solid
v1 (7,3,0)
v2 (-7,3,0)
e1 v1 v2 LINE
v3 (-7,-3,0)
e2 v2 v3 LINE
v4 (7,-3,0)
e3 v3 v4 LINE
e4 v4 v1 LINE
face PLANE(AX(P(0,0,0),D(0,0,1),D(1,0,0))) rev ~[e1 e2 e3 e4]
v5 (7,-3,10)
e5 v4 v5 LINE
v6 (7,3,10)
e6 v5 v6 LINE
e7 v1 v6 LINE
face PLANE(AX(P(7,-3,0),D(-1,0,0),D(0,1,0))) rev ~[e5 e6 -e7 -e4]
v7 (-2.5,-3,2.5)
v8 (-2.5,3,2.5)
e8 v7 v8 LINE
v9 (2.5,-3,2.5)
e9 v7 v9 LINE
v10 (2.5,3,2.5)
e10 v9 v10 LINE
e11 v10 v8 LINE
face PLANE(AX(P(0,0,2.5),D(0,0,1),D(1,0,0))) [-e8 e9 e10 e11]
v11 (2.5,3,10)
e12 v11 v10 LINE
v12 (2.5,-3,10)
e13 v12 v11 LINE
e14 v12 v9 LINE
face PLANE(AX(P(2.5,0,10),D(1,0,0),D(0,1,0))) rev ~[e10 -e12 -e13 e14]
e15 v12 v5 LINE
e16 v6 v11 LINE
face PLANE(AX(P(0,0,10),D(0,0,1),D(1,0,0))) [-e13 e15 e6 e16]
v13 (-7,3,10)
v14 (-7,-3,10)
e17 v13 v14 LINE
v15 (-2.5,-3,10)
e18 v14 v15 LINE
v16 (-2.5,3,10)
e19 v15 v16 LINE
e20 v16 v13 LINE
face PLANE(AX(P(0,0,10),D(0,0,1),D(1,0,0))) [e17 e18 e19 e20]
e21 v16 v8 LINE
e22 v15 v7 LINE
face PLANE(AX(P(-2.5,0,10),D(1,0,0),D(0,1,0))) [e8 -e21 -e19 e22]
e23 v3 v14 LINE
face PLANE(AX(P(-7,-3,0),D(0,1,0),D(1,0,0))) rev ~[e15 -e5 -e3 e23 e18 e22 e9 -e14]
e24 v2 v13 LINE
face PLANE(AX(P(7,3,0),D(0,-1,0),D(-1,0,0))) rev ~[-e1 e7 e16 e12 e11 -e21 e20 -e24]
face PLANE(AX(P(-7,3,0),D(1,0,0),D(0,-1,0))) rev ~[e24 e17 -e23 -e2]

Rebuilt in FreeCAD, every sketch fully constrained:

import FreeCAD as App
import Part
import Sketcher

V = App.Vector
Q = App.Units.Quantity


def add_polygon(sketch, points):
    """Adds a closed chain of lines whose ends are joined by coincident constraints."""
    first, n = sketch.GeometryCount, len(points)
    for a, b in zip(points, points[1:] + points[:1]):
        sketch.addGeometry(Part.LineSegment(App.Vector(*a, 0), App.Vector(*b, 0)), False)
    for i in range(n):
        sketch.addConstraint(Sketcher.Constraint("Coincident", first + i, 2, first + (i + 1) % n, 1))

doc = App.newDocument("Part")
params = doc.addObject("Spreadsheet::Sheet", "Params")
for row, (alias, value) in enumerate([
    ("sketch1_width", "14 mm"),
    ("sketch1_height", "6 mm"),
    ("pad1_length", "10 mm"),
    ("sketch2_width", "5 mm"),
    ("sketch2_height", "6 mm"),
    ("pocket1_length", "7.5 mm"),
], start=1):
    params.set(f"A{row}", alias)
    params.set(f"B{row}", "=" + value)
    params.setAlias(f"B{row}", alias)

body = doc.addObject("PartDesign::Body", "Body")

sketch1 = doc.addObject("Sketcher::SketchObject", "Sketch")
body.addObject(sketch1)
sketch1.AttachmentSupport = (doc.XY_Plane, [""])
sketch1.MapMode = "FlatFace"
add_polygon(sketch1, [(-7, 3), (-7, -3), (7, -3), (7, 3)])
sketch1.addConstraint(Sketcher.Constraint("Vertical", 0))
sketch1.addConstraint(Sketcher.Constraint("Horizontal", 1))
sketch1.addConstraint(Sketcher.Constraint("Vertical", 2))
sketch1.addConstraint(Sketcher.Constraint("Horizontal", 3))
sketch1.addConstraint(Sketcher.Constraint("Symmetric", 0, 2, 2, 2, -1, 1))
sketch1.addConstraint(Sketcher.Constraint("DistanceX", 1, 1, 1, 2, Q("14 mm")))
sketch1.addConstraint(Sketcher.Constraint("DistanceY", 0, 2, 0, 1, Q("6 mm")))
sketch1.setExpression("Constraints[9]", "Params.sketch1_width")
sketch1.setExpression("Constraints[10]", "Params.sketch1_height")
pad1 = doc.addObject("PartDesign::Pad", "Pad")
body.addObject(pad1)
pad1.Profile = sketch1
pad1.setExpression("Length", "Params.pad1_length")

sketch2 = doc.addObject("Sketcher::SketchObject", "Sketch001")
body.addObject(sketch2)
sketch2.AttachmentSupport = (doc.XY_Plane, [""])
sketch2.MapMode = "FlatFace"
sketch2.AttachmentOffset = App.Placement(V(0, 0, 10), App.Rotation())
add_polygon(sketch2, [(-2, 3), (-2, -3), (2, -3), (2, 3)])
sketch2.addConstraint(Sketcher.Constraint("Vertical", 0))
sketch2.addConstraint(Sketcher.Constraint("Horizontal", 1))
sketch2.addConstraint(Sketcher.Constraint("Vertical", 2))
sketch2.addConstraint(Sketcher.Constraint("Horizontal", 3))
sketch2.addConstraint(Sketcher.Constraint("Symmetric", 0, 2, 2, 2, -1, 1))
sketch2.addConstraint(Sketcher.Constraint("DistanceX", 1, 1, 1, 2, Q("5 mm")))
sketch2.addConstraint(Sketcher.Constraint("DistanceY", 0, 2, 0, 1, Q("6 mm")))
sketch2.setExpression("Constraints[9]", "Params.sketch2_width")
sketch2.setExpression("Constraints[10]", "Params.sketch2_height")
pocket1 = doc.addObject("PartDesign::Pocket", "Pocket")
body.addObject(pocket1)
pocket1.Profile = sketch2
pocket1.setExpression("Length", "Params.pocket1_length")

doc.recompute()
